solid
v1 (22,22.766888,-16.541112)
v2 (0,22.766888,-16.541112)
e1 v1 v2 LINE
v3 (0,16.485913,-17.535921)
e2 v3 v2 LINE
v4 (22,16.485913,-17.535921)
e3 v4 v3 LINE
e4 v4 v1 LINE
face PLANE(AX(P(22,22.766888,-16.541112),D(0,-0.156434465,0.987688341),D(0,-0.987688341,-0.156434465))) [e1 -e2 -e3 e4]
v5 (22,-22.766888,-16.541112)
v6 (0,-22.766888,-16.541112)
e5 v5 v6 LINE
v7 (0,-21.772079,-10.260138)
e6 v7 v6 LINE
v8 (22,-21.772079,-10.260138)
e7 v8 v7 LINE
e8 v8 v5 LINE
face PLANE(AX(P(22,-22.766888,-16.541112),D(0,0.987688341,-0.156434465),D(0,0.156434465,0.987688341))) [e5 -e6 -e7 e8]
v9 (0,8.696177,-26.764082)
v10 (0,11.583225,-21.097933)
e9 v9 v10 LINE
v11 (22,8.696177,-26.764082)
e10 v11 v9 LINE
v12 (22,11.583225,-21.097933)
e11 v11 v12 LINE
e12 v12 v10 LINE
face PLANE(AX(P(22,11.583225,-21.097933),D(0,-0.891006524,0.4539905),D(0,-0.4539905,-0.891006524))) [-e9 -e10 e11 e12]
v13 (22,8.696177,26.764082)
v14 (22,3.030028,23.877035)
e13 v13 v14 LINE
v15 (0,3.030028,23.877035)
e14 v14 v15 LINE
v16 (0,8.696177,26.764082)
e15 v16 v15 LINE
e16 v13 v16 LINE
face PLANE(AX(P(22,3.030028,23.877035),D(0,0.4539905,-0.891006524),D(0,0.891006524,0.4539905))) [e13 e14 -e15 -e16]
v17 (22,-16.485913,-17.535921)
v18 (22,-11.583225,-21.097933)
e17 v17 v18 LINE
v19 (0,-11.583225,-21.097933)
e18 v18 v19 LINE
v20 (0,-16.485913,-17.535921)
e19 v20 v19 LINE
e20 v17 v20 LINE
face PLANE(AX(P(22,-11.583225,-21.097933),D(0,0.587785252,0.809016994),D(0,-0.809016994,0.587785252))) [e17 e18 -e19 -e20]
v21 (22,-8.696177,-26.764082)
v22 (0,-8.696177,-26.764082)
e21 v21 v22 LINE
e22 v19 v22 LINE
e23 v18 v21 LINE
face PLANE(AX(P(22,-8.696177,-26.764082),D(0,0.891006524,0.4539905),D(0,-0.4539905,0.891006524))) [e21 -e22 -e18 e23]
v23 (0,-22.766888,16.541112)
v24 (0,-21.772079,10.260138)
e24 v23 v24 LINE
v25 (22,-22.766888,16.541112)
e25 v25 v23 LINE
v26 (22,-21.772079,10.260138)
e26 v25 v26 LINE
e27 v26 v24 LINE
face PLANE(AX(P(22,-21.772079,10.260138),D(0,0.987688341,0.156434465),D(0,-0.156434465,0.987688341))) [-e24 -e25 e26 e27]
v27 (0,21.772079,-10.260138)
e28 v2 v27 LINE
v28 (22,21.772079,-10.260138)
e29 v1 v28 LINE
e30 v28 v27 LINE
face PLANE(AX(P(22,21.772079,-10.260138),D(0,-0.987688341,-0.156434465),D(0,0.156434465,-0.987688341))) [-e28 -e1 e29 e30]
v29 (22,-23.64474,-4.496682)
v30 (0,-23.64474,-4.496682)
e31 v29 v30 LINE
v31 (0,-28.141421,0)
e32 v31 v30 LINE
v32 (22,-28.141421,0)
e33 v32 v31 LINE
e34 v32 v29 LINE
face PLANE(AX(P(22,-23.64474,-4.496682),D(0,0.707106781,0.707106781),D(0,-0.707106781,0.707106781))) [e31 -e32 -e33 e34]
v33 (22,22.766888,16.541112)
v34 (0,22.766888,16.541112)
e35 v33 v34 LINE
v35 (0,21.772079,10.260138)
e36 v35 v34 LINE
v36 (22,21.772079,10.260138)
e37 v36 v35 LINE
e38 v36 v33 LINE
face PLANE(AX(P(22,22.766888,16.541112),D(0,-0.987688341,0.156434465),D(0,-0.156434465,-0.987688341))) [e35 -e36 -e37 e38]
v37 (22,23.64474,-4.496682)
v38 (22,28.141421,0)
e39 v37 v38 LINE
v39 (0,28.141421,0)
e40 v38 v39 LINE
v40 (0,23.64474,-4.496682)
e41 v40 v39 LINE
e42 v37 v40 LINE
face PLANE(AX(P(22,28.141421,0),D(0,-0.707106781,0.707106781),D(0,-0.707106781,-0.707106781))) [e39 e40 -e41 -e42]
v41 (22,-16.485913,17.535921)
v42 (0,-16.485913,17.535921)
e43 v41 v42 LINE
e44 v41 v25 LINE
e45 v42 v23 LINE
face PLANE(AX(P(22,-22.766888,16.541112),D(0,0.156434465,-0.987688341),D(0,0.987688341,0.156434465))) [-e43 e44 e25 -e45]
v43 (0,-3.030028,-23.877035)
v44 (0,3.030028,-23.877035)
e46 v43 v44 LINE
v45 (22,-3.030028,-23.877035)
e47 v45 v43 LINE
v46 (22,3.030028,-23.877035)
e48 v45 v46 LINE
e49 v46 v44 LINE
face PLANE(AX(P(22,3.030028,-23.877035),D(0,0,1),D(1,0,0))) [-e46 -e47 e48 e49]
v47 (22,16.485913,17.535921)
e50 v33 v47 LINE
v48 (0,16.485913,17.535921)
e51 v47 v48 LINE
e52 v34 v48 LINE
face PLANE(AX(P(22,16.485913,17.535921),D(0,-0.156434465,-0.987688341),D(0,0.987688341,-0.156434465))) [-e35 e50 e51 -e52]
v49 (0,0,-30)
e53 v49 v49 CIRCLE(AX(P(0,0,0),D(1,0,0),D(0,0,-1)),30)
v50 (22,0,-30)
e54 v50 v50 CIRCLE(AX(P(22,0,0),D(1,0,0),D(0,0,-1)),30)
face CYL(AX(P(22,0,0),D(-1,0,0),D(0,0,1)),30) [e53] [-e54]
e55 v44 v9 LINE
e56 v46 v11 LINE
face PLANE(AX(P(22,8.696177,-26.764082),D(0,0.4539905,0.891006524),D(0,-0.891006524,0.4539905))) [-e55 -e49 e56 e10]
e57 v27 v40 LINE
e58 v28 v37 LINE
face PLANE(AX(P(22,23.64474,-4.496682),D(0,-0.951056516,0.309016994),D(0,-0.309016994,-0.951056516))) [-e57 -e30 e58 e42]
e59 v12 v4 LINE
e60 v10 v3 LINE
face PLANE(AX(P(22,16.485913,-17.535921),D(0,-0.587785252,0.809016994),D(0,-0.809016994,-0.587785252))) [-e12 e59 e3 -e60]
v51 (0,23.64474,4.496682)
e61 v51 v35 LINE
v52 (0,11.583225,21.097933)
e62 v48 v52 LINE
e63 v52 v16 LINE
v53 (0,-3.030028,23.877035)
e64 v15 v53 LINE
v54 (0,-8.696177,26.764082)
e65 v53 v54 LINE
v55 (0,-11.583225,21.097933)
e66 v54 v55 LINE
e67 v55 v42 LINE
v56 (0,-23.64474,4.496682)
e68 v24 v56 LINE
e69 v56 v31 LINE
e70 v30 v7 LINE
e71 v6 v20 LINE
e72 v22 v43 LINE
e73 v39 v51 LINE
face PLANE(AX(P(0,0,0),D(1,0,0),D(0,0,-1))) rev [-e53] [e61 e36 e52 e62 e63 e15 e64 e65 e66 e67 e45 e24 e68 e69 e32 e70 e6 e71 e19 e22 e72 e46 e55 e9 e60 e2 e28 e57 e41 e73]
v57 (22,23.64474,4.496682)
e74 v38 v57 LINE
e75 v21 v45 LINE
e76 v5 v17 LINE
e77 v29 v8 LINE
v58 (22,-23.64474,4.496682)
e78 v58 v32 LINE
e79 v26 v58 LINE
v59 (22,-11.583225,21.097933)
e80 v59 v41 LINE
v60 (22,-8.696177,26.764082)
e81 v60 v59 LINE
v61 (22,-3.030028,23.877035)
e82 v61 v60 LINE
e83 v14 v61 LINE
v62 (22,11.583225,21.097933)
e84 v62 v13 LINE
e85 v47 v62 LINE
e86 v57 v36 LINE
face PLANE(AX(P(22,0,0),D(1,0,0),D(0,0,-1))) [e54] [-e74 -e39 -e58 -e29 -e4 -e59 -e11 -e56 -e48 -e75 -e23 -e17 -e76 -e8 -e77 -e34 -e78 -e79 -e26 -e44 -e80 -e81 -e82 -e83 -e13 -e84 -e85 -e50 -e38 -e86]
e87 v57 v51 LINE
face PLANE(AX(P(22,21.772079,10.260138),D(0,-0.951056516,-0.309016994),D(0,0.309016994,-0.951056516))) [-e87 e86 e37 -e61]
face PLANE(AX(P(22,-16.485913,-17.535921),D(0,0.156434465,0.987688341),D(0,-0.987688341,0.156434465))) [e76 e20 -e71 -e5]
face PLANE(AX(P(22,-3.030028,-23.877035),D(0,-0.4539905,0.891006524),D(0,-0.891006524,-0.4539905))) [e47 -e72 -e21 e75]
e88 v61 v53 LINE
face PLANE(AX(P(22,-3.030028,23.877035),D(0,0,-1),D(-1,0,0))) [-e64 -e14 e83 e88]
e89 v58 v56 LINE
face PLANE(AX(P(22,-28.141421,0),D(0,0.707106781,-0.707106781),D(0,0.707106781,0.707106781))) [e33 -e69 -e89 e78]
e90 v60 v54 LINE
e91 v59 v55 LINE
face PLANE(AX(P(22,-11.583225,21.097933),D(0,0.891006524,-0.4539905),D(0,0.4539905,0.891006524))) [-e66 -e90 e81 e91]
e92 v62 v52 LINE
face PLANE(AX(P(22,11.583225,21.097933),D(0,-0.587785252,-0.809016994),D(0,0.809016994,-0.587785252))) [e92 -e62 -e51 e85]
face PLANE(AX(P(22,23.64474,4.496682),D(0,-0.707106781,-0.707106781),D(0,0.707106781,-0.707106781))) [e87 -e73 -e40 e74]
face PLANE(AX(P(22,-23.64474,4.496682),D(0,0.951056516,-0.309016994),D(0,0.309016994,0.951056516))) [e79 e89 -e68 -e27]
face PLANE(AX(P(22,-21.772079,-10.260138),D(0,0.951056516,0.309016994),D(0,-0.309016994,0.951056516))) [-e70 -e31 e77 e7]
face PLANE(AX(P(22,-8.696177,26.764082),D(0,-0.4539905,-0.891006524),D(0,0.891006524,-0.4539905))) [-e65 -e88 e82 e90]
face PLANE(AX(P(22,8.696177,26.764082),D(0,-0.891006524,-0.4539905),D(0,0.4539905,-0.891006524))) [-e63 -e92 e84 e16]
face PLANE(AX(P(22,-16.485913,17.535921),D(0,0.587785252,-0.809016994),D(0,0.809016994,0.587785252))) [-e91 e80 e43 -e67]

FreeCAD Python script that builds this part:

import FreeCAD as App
import Part
import Sketcher
Q = App.Units.Quantity

doc = App.newDocument("Part")
body = doc.addObject("PartDesign::Body", "Body")

sketch1 = body.newObject("Sketcher::SketchObject", "Sketch")
sketch1.AttachmentSupport = (doc.getObject("YZ_Plane"), [""])
sketch1.MapMode = "FlatFace"
sketch1.addGeometry(Part.Circle(App.Vector(0, 0, 0), App.Vector(0, 0, 1), 30), False)
sketch1.addGeometry(Part.LineSegment(App.Vector(16, 18, 0), App.Vector(23, 17, 0)), False)
sketch1.addGeometry(Part.LineSegment(App.Vector(23, 17, 0), App.Vector(22, 10, 0)), False)
sketch1.addGeometry(Part.LineSegment(App.Vector(22, 10, 0), App.Vector(24, 4, 0)), False)
sketch1.addGeometry(Part.LineSegment(App.Vector(24, 4, 0), App.Vector(28, 0, 0)), False)
sketch1.addGeometry(Part.LineSegment(App.Vector(28, 0, 0), App.Vector(24, -4, 0)), False)
sketch1.addGeometry(Part.LineSegment(App.Vector(24, -4, 0), App.Vector(22, -10, 0)), False)
sketch1.addGeometry(Part.LineSegment(App.Vector(22, -10, 0), App.Vector(23, -17, 0)), False)
sketch1.addGeometry(Part.LineSegment(App.Vector(23, -17, 0), App.Vector(16, -18, 0)), False)
sketch1.addGeometry(Part.LineSegment(App.Vector(16, -18, 0), App.Vector(12, -21, 0)), False)
sketch1.addGeometry(Part.LineSegment(App.Vector(12, -21, 0), App.Vector(9, -27, 0)), False)
sketch1.addGeometry(Part.LineSegment(App.Vector(9, -27, 0), App.Vector(3, -24, 0)), False)
sketch1.addGeometry(Part.LineSegment(App.Vector(3, -24, 0), App.Vector(-3, -24, 0)), False)
sketch1.addGeometry(Part.LineSegment(App.Vector(-3, -24, 0), App.Vector(-9, -27, 0)), False)
sketch1.addGeometry(Part.LineSegment(App.Vector(-9, -27, 0), App.Vector(-12, -21, 0)), False)
sketch1.addGeometry(Part.LineSegment(App.Vector(-12, -21, 0), App.Vector(-16, -18, 0)), False)
sketch1.addGeometry(Part.LineSegment(App.Vector(-16, -18, 0), App.Vector(-23, -17, 0)), False)
sketch1.addGeometry(Part.LineSegment(App.Vector(-23, -17, 0), App.Vector(-22, -10, 0)), False)
sketch1.addGeometry(Part.LineSegment(App.Vector(-22, -10, 0), App.Vector(-24, -4, 0)), False)
sketch1.addGeometry(Part.LineSegment(App.Vector(-24, -4, 0), App.Vector(-28, 0, 0)), False)
sketch1.addGeometry(Part.LineSegment(App.Vector(-28, 0, 0), App.Vector(-24, 4, 0)), False)
sketch1.addGeometry(Part.LineSegment(App.Vector(-24, 4, 0), App.Vector(-22, 10, 0)), False)
sketch1.addGeometry(Part.LineSegment(App.Vector(-22, 10, 0), App.Vector(-23, 17, 0)), False)
sketch1.addGeometry(Part.LineSegment(App.Vector(-23, 17, 0), App.Vector(-16, 18, 0)), False)
sketch1.addGeometry(Part.LineSegment(App.Vector(-16, 18, 0), App.Vector(-12, 21, 0)), False)
sketch1.addGeometry(Part.LineSegment(App.Vector(-12, 21, 0), App.Vector(-9, 27, 0)), False)
sketch1.addGeometry(Part.LineSegment(App.Vector(-9, 27, 0), App.Vector(-3, 24, 0)), False)
sketch1.addGeometry(Part.LineSegment(App.Vector(-3, 24, 0), App.Vector(3, 24, 0)), False)
sketch1.addGeometry(Part.LineSegment(App.Vector(3, 24, 0), App.Vector(9, 27, 0)), False)
sketch1.addGeometry(Part.LineSegment(App.Vector(9, 27, 0), App.Vector(12, 21, 0)), False)
sketch1.addGeometry(Part.LineSegment(App.Vector(12, 21, 0), App.Vector(16, 18, 0)), False)
sketch1.addConstraint(Sketcher.Constraint("Coincident", 1, 2, 2, 1))
sketch1.addConstraint(Sketcher.Constraint("Coincident", 2, 2, 3, 1))
sketch1.addConstraint(Sketcher.Constraint("Coincident", 3, 2, 4, 1))
sketch1.addConstraint(Sketcher.Constraint("Coincident", 4, 2, 5, 1))
sketch1.addConstraint(Sketcher.Constraint("Coincident", 5, 2, 6, 1))
sketch1.addConstraint(Sketcher.Constraint("Coincident", 6, 2, 7, 1))
sketch1.addConstraint(Sketcher.Constraint("Coincident", 7, 2, 8, 1))
sketch1.addConstraint(Sketcher.Constraint("Coincident", 8, 2, 9, 1))
sketch1.addConstraint(Sketcher.Constraint("Coincident", 9, 2, 10, 1))
sketch1.addConstraint(Sketcher.Constraint("Coincident", 10, 2, 11, 1))
sketch1.addConstraint(Sketcher.Constraint("Coincident", 11, 2, 12, 1))
sketch1.addConstraint(Sketcher.Constraint("Coincident", 12, 2, 13, 1))
sketch1.addConstraint(Sketcher.Constraint("Coincident", 13, 2, 14, 1))
sketch1.addConstraint(Sketcher.Constraint("Coincident", 14, 2, 15, 1))
sketch1.addConstraint(Sketcher.Constraint("Coincident", 15, 2, 16, 1))
sketch1.addConstraint(Sketcher.Constraint("Coincident", 16, 2, 17, 1))
sketch1.addConstraint(Sketcher.Constraint("Coincident", 17, 2, 18, 1))
sketch1.addConstraint(Sketcher.Constraint("Coincident", 18, 2, 19, 1))
sketch1.addConstraint(Sketcher.Constraint("Coincident", 19, 2, 20, 1))
sketch1.addConstraint(Sketcher.Constraint("Coincident", 20, 2, 21, 1))
sketch1.addConstraint(Sketcher.Constraint("Coincident", 21, 2, 22, 1))
sketch1.addConstraint(Sketcher.Constraint("Coincident", 22, 2, 23, 1))
sketch1.addConstraint(Sketcher.Constraint("Coincident", 23, 2, 24, 1))
sketch1.addConstraint(Sketcher.Constraint("Coincident", 24, 2, 25, 1))
sketch1.addConstraint(Sketcher.Constraint("Coincident", 25, 2, 26, 1))
sketch1.addConstraint(Sketcher.Constraint("Coincident", 26, 2, 27, 1))
sketch1.addConstraint(Sketcher.Constraint("Coincident", 27, 2, 28, 1))
sketch1.addConstraint(Sketcher.Constraint("Coincident", 28, 2, 29, 1))
sketch1.addConstraint(Sketcher.Constraint("Coincident", 29, 2, 30, 1))
sketch1.addConstraint(Sketcher.Constraint("Coincident", 30, 2, 1, 1))
sketch1.addConstraint(Sketcher.Constraint("Horizontal", 12))
sketch1.addConstraint(Sketcher.Constraint("Horizontal", 27))
sketch1.addConstraint(Sketcher.Constraint("Coincident", 0, 3, -1, 1))
sketch1.addConstraint(Sketcher.Constraint("Symmetric", 1, 2, 16, 2, -1, 1))
sketch1.addConstraint(Sketcher.Constraint("Symmetric", 2, 2, 17, 2, -1, 1))
sketch1.addConstraint(Sketcher.Constraint("Symmetric", 3, 2, 18, 2, -1, 1))
sketch1.addConstraint(Sketcher.Constraint("Symmetric", 4, 2, 19, 2, -1, 1))
sketch1.addConstraint(Sketcher.Constraint("Symmetric", 5, 2, 20, 2, -1, 1))
sketch1.addConstraint(Sketcher.Constraint("Symmetric", 6, 2, 21, 2, -1, 1))
sketch1.addConstraint(Sketcher.Constraint("Symmetric", 7, 2, 22, 2, -1, 1))
sketch1.addConstraint(Sketcher.Constraint("Symmetric", 8, 2, 23, 2, -1, 1))
sketch1.addConstraint(Sketcher.Constraint("Symmetric", 9, 2, 24, 2, -1, 1))
sketch1.addConstraint(Sketcher.Constraint("Symmetric", 10, 2, 25, 2, -1, 1))
sketch1.addConstraint(Sketcher.Constraint("Symmetric", 11, 2, 26, 2, -1, 1))
sketch1.addConstraint(Sketcher.Constraint("Symmetric", 13, 2, 28, 2, -1, 1))
sketch1.addConstraint(Sketcher.Constraint("Symmetric", 14, 2, 29, 2, -1, 1))
sketch1.addConstraint(Sketcher.Constraint("Symmetric", 15, 2, 30, 2, -1, 1))
sketch1.addConstraint(Sketcher.Constraint("Symmetric", 10, 2, 13, 2, -2))
sketch1.addConstraint(Sketcher.Constraint("Symmetric", 9, 2, 14, 2, -2))
sketch1.addConstraint(Sketcher.Constraint("Symmetric", 8, 2, 15, 2, -2))
sketch1.addConstraint(Sketcher.Constraint("Symmetric", 7, 2, 16, 2, -2))
sketch1.addConstraint(Sketcher.Constraint("Symmetric", 6, 2, 17, 2, -2))
sketch1.addConstraint(Sketcher.Constraint("Symmetric", 5, 2, 18, 2, -2))
sketch1.addConstraint(Sketcher.Constraint("PointOnObject", 4, 2, -1))
sketch1.addConstraint(Sketcher.Constraint("Perpendicular", 1, 2))
sketch1.addConstraint(Sketcher.Constraint("Perpendicular", 4, 5))
sketch1.addConstraint(Sketcher.Constraint("Perpendicular", 10, 11))
sketch1.addConstraint(Sketcher.Constraint("Perpendicular", 13, 14))
sketch1.addConstraint(Sketcher.Constraint("Perpendicular", 14, 28))
sketch1.addConstraint(Sketcher.Constraint("Equal", 1, 2))
sketch1.addConstraint(Sketcher.Constraint("Equal", 2, 4))
sketch1.addConstraint(Sketcher.Constraint("Equal", 6, 9))
sketch1.addConstraint(Sketcher.Constraint("Equal", 8, 10))
sketch1.addConstraint(Sketcher.Constraint("Equal", 10, 11))
sketch1.addConstraint(Sketcher.Constraint("Diameter", 0, 60.0))
sketch1.addConstraint(Sketcher.Constraint("Angle", 1, Q("-9 deg")))
sketch1.addConstraint(Sketcher.Constraint("Angle", 3, Q("-72 deg")))
sketch1.addConstraint(Sketcher.Constraint("Angle", 9, Q("-144 deg")))
sketch1.addConstraint(Sketcher.Constraint("Angle", 10, Q("-117 deg")))
sketch1.addConstraint(Sketcher.Constraint("DistanceX", 10, 2, 6, 2, 13.075902))
sketch1.addConstraint(Sketcher.Constraint("DistanceY", 10, 2, 5, 2, 22.267401))
sketch1.addConstraint(Sketcher.Constraint("DistanceX", 12, 2, 12, 1, 6.060056))
pad1 = body.newObject("PartDesign::Pad", "Pad")
pad1.Profile = sketch1
pad1.Length = 22

doc.recompute()
